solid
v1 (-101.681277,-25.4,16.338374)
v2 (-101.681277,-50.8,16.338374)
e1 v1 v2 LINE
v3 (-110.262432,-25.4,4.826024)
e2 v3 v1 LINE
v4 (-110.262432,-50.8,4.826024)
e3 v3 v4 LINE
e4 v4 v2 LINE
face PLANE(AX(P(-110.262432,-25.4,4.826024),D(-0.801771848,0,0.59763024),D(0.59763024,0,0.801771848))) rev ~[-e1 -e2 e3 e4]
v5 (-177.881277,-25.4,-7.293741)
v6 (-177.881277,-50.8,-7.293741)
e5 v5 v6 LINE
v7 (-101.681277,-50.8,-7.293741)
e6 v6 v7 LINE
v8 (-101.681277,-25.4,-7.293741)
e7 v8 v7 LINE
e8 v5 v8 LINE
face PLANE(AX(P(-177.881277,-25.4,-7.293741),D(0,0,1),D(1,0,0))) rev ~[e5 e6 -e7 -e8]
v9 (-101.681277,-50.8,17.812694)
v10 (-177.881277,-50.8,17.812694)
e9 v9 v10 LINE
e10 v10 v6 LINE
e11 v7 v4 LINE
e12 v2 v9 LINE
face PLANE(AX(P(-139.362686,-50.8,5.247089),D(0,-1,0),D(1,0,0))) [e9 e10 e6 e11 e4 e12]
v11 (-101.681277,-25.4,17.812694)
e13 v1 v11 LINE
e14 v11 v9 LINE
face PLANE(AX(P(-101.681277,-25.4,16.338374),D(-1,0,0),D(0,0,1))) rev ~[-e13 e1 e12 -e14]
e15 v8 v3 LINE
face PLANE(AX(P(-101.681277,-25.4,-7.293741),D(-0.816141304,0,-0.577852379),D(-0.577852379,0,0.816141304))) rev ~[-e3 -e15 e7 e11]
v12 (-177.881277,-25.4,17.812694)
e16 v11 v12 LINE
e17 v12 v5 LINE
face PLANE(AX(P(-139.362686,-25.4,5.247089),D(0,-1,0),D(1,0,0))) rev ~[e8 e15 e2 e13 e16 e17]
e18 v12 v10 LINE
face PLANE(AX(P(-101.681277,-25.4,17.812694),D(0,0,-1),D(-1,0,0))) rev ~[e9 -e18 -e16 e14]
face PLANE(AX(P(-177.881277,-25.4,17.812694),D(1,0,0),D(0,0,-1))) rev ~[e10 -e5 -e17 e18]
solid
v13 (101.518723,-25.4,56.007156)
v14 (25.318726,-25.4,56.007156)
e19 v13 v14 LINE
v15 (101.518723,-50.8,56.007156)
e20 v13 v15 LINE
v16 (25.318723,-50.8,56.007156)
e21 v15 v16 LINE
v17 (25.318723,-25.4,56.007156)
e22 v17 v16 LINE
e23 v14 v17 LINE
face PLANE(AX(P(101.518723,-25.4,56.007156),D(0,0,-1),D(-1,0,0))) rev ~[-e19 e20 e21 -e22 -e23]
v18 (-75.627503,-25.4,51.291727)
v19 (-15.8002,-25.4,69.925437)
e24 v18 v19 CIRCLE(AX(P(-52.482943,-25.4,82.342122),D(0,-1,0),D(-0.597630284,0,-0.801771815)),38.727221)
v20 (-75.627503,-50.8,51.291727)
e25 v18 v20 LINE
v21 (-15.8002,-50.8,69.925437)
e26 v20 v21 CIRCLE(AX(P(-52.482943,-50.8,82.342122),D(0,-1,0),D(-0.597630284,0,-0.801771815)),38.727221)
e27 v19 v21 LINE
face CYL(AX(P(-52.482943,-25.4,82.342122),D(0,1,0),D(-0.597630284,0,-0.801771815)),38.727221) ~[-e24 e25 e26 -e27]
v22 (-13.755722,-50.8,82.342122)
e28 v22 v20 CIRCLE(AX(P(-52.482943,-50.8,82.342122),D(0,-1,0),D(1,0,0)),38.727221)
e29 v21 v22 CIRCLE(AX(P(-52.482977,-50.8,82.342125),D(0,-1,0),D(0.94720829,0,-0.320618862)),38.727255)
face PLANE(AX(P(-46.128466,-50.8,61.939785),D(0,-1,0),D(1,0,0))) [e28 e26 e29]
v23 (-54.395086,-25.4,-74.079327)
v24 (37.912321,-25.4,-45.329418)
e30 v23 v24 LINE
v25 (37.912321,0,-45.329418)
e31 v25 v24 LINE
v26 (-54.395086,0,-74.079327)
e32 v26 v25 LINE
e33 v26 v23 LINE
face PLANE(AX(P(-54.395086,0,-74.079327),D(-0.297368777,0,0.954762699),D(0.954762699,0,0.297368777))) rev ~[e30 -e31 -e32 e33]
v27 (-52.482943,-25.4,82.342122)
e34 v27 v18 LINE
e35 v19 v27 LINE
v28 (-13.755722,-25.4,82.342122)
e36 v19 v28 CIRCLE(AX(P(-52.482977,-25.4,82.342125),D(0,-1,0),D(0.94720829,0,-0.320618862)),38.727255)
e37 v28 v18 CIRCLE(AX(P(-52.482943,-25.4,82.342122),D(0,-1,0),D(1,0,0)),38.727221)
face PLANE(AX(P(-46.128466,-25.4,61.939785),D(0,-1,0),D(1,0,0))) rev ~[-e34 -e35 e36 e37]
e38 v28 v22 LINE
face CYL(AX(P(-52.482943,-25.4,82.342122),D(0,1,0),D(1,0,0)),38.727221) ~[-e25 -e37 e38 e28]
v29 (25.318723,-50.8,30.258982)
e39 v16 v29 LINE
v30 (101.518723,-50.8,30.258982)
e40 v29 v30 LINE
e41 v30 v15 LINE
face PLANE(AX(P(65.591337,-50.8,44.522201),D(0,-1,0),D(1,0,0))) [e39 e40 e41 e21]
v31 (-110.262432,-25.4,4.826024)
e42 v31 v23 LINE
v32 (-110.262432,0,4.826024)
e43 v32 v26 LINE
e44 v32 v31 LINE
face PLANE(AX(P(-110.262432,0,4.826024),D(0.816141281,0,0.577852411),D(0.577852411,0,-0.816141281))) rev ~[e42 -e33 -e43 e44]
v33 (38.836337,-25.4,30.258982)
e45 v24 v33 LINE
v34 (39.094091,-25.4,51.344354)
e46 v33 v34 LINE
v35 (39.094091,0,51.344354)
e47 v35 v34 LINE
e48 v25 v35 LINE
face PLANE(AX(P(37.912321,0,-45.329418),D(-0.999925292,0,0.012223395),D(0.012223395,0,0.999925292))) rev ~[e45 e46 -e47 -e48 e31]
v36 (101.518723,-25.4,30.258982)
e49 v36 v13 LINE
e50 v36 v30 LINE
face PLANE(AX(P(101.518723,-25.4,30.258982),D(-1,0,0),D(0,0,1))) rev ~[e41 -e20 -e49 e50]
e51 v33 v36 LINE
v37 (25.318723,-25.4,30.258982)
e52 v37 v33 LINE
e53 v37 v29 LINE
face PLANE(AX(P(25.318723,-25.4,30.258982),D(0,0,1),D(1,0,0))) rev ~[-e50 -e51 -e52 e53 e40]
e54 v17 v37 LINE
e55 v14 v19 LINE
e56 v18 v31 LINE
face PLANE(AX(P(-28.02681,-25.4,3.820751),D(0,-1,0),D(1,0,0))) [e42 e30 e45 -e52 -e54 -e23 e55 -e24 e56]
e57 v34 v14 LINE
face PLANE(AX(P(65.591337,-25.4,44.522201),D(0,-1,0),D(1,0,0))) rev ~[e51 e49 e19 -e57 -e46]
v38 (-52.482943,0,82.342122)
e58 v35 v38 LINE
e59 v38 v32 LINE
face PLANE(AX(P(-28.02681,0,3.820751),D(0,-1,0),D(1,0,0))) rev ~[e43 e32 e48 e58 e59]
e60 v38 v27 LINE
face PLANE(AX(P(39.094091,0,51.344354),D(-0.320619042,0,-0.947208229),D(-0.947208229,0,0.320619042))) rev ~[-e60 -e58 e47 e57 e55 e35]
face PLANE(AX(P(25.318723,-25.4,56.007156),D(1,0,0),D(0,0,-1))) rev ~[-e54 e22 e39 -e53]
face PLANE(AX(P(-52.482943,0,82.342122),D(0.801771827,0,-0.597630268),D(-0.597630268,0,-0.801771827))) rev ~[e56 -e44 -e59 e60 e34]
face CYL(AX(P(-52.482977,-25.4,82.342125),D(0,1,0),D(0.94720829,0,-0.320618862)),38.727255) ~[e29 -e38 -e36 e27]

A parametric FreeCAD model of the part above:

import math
import FreeCAD as App
import Part
import Sketcher
from FreeCAD import Vector
Q = App.Units.Quantity

doc = App.newDocument("Part")
body = doc.addObject("PartDesign::Body", "Body")

# Sketch on XZ plane
sketch1 = body.newObject("Sketcher::SketchObject", "Sketch")
sketch1.AttachmentSupport = (doc.getObject("XZ_Plane"), [""])
sketch1.MapMode = "FlatFace"
sketch1.addGeometry(Part.LineSegment(Vector(-110.262432, 4.826024, 0), Vector(-54.395086, -74.079327, 0)), False)
sketch1.addGeometry(Part.LineSegment(Vector(-54.395086, -74.079327, 0), Vector(37.912321, -45.329418, 0)), False)
sketch1.addGeometry(Part.LineSegment(Vector(37.912321, -45.329418, 0), Vector(39.094091, 51.344354, 0)), False)
sketch1.addGeometry(Part.LineSegment(Vector(39.094091, 51.344354, 0), Vector(-52.482943, 82.342122, 0)), False)
sketch1.addGeometry(Part.LineSegment(Vector(-52.482943, 82.342122, 0), Vector(-110.262432, 4.826024, 0)), False)
sketch1.addConstraint(Sketcher.Constraint("Coincident", 0, 2, 1, 1))
sketch1.addConstraint(Sketcher.Constraint("Coincident", 1, 2, 2, 1))
sketch1.addConstraint(Sketcher.Constraint("Coincident", 2, 2, 3, 1))
sketch1.addConstraint(Sketcher.Constraint("Coincident", 3, 2, 4, 1))
sketch1.addConstraint(Sketcher.Constraint("Coincident", 4, 2, 0, 1))
sketch1.addConstraint(Sketcher.Constraint("Equal", 0, 1))
sketch1.addConstraint(Sketcher.Constraint("Equal", 1, 2))
sketch1.addConstraint(Sketcher.Constraint("Equal", 2, 3))
sketch1.addConstraint(Sketcher.Constraint("Equal", 3, 4))
sketch1.addConstraint(Sketcher.Constraint("DistanceY", 4, 2, 3, 2, Q("77.516098 mm")))
sketch1.addConstraint(Sketcher.Constraint("DistanceX", -1, 1, 1, 2, Q("37.912321 mm")))
sketch1.addConstraint(Sketcher.Constraint("DistanceX", -1, 1, 2, 2, Q("39.094091 mm")))
sketch1.addConstraint(Sketcher.Constraint("DistanceY", 0, 2, 1, 2, Q("28.749909 mm")))
sketch1.addConstraint(Sketcher.Constraint("DistanceY", 1, 2, 2, 2, Q("96.673772 mm")))
sketch1.addConstraint(Sketcher.Constraint("DistanceY", 0, 2, -1, 1, Q("74.079327 mm")))
pad1 = body.newObject("PartDesign::Pad", "Pad")
pad1.Profile = sketch1
pad1.Length = Q("1 in")

# Sketch on XZ plane
sketch2 = body.newObject("Sketcher::SketchObject", "Sketch001")
sketch2.AttachmentSupport = (doc.getObject("XZ_Plane"), [""])
sketch2.MapMode = "FlatFace"
sketch2.AttachmentOffset = App.Placement(Vector(0, 0, 1 * 25.4), App.Rotation())
sketch2.addGeometry(Part.ArcOfCircle(Part.Circle(Vector(-52.482943, 82.342122, 0), Vector(0, 0, 1), 38.727221), math.radians(-126.700367), math.radians(-18.700366)), False)
sketch2.addGeometry(Part.ArcOfCircle(Part.Circle(Vector(-52.482977, 82.342125, 0), Vector(0, 0, 1), 38.727255), math.radians(-18.700355), math.radians(-0.000005)), False)
sketch2.addGeometry(Part.ArcOfCircle(Part.Circle(Vector(-52.482943, 82.342122, 0), Vector(0, 0, 1), 38.727221), math.radians(0), math.radians(233.299634)), False)
sketch2.addConstraint(Sketcher.Constraint("Coincident", 0, 2, 1, 1))
sketch2.addConstraint(Sketcher.Constraint("Coincident", 1, 2, 2, 1))
sketch2.addConstraint(Sketcher.Constraint("Coincident", 2, 2, 0, 1))
sketch2.addConstraint(Sketcher.Constraint("Coincident", 2, 3, 0, 3))
sketch2.addConstraint(Sketcher.Constraint("Radius", 0, Q("38.727221 mm")))
sketch2.addConstraint(Sketcher.Constraint("Radius", 1, Q("38.727255 mm")))
sketch2.addConstraint(Sketcher.Constraint("DistanceX", 0, 2, -1, 1, Q("15.8002 mm")))
sketch2.addConstraint(Sketcher.Constraint("DistanceY", 2, 2, 1, 3, Q("31.050398 mm")))
sketch2.addConstraint(Sketcher.Constraint("DistanceY", -1, 1, 0, 3, Q("82.342122 mm")))
sketch2.addConstraint(Sketcher.Constraint("DistanceY", 0, 2, 1, 3, Q("12.416688 mm")))
sketch2.addConstraint(Sketcher.Constraint("DistanceY", -1, 1, 1, 2, Q("82.342122 mm")))
pad2 = body.newObject("PartDesign::Pad", "Pad001")
pad2.Profile = sketch2
pad2.Length = Q("1 in")

# Sketch on XZ plane
sketch3 = body.newObject("Sketcher::SketchObject", "Sketch002")
sketch3.AttachmentSupport = (doc.getObject("XZ_Plane"), [""])
sketch3.MapMode = "FlatFace"
sketch3.AttachmentOffset = App.Placement(Vector(0, 0, 1 * 25.4), App.Rotation())
sketch3.addGeometry(Part.LineSegment(Vector(101.518723, 56.007156, 0), Vector(25.318723, 56.007156, 0)), False)
sketch3.addGeometry(Part.LineSegment(Vector(25.318723, 56.007156, 0), Vector(25.318723, 30.258982, 0)), False)
sketch3.addGeometry(Part.LineSegment(Vector(25.318723, 30.258982, 0), Vector(101.518723, 30.258982, 0)), False)
sketch3.addGeometry(Part.LineSegment(Vector(101.518723, 30.258982, 0), Vector(101.518723, 56.007156, 0)), False)
sketch3.addConstraint(Sketcher.Constraint("Coincident", 0, 2, 1, 1))
sketch3.addConstraint(Sketcher.Constraint("Coincident", 1, 2, 2, 1))
sketch3.addConstraint(Sketcher.Constraint("Coincident", 2, 2, 3, 1))
sketch3.addConstraint(Sketcher.Constraint("Coincident", 3, 2, 0, 1))
sketch3.addConstraint(Sketcher.Constraint("Horizontal", 0))
sketch3.addConstraint(Sketcher.Constraint("Vertical", 1))
sketch3.addConstraint(Sketcher.Constraint("Horizontal", 2))
sketch3.addConstraint(Sketcher.Constraint("Vertical", 3))
sketch3.addConstraint(Sketcher.Constraint("DistanceX", 0, 2, 0, 1, Q("3 in")))
sketch3.addConstraint(Sketcher.Constraint("DistanceX", -1, 1, 0, 2, Q("0.9968001 in")))
sketch3.addConstraint(Sketcher.Constraint("DistanceY", 1, 2, 1, 1, Q("25.748174 mm")))
sketch3.addConstraint(Sketcher.Constraint("DistanceY", -1, 1, 1, 2, Q("30.258982 mm")))
pad3 = body.newObject("PartDesign::Pad", "Pad002")
pad3.Profile = sketch3
pad3.Length = Q("1 in")
body2 = doc.addObject("PartDesign::Body", "Body001")

# Sketch on XZ plane
sketch4 = body2.newObject("Sketcher::SketchObject", "Sketch003")
sketch4.AttachmentSupport = (doc.getObject("XZ_Plane001"), [""])
sketch4.MapMode = "FlatFace"
sketch4.AttachmentOffset = App.Placement(Vector(0, 0, 1 * 25.4), App.Rotation())
sketch4.addGeometry(Part.LineSegment(Vector(-177.881277, -7.293741, 0), Vector(-101.681277, -7.293741, 0)), False)
sketch4.addGeometry(Part.LineSegment(Vector(-101.681277, -7.293741, 0), Vector(-110.262432, 4.826024, 0)), False)
sketch4.addGeometry(Part.LineSegment(Vector(-110.262432, 4.826024, 0), Vector(-101.681277, 16.338374, 0)), False)
sketch4.addGeometry(Part.LineSegment(Vector(-101.681277, 16.338374, 0), Vector(-101.681277, 17.812694, 0)), False)
sketch4.addGeometry(Part.LineSegment(Vector(-101.681277, 17.812694, 0), Vector(-177.881277, 17.812694, 0)), False)
sketch4.addGeometry(Part.LineSegment(Vector(-177.881277, 17.812694, 0), Vector(-177.881277, -7.293741, 0)), False)
sketch4.addConstraint(Sketcher.Constraint("Coincident", 0, 2, 1, 1))
sketch4.addConstraint(Sketcher.Constraint("Coincident", 1, 2, 2, 1))
sketch4.addConstraint(Sketcher.Constraint("Coincident", 2, 2, 3, 1))
sketch4.addConstraint(Sketcher.Constraint("Coincident", 3, 2, 4, 1))
sketch4.addConstraint(Sketcher.Constraint("Coincident", 4, 2, 5, 1))
sketch4.addConstraint(Sketcher.Constraint("Coincident", 5, 2, 0, 1))
sketch4.addConstraint(Sketcher.Constraint("Horizontal", 0))
sketch4.addConstraint(Sketcher.Constraint("Vertical", 3))
sketch4.addConstraint(Sketcher.Constraint("Horizontal", 4))
sketch4.addConstraint(Sketcher.Constraint("Vertical", 5))
sketch4.addConstraint(Sketcher.Constraint("Vertical", 0, 2, 2, 2))
sketch4.addConstraint(Sketcher.Constraint("DistanceX", 0, 1, 0, 2, Q("3 in")))
sketch4.addConstraint(Sketcher.Constraint("DistanceX", 0, 2, -1, 1, Q("4.0031999 in")))
sketch4.addConstraint(Sketcher.Constraint("DistanceY", 3, 1, 3, 2, Q("1.47432 mm")))
sketch4.addConstraint(Sketcher.Constraint("Distance", 1, Q("14.850082 mm")))
sketch4.addConstraint(Sketcher.Constraint("DistanceY", 5, 2, 5, 1, Q("25.106435 mm")))
sketch4.addConstraint(Sketcher.Constraint("DistanceY", 0, 2, -1, 1, Q("7.293741 mm")))
sketch4.addConstraint(Sketcher.Constraint("DistanceY", 1, 2, 2, 2, Q("11.51235 mm")))
pad4 = body2.newObject("PartDesign::Pad", "Pad003")
pad4.Profile = sketch4
pad4.Length = Q("1 in")

doc.recompute()
